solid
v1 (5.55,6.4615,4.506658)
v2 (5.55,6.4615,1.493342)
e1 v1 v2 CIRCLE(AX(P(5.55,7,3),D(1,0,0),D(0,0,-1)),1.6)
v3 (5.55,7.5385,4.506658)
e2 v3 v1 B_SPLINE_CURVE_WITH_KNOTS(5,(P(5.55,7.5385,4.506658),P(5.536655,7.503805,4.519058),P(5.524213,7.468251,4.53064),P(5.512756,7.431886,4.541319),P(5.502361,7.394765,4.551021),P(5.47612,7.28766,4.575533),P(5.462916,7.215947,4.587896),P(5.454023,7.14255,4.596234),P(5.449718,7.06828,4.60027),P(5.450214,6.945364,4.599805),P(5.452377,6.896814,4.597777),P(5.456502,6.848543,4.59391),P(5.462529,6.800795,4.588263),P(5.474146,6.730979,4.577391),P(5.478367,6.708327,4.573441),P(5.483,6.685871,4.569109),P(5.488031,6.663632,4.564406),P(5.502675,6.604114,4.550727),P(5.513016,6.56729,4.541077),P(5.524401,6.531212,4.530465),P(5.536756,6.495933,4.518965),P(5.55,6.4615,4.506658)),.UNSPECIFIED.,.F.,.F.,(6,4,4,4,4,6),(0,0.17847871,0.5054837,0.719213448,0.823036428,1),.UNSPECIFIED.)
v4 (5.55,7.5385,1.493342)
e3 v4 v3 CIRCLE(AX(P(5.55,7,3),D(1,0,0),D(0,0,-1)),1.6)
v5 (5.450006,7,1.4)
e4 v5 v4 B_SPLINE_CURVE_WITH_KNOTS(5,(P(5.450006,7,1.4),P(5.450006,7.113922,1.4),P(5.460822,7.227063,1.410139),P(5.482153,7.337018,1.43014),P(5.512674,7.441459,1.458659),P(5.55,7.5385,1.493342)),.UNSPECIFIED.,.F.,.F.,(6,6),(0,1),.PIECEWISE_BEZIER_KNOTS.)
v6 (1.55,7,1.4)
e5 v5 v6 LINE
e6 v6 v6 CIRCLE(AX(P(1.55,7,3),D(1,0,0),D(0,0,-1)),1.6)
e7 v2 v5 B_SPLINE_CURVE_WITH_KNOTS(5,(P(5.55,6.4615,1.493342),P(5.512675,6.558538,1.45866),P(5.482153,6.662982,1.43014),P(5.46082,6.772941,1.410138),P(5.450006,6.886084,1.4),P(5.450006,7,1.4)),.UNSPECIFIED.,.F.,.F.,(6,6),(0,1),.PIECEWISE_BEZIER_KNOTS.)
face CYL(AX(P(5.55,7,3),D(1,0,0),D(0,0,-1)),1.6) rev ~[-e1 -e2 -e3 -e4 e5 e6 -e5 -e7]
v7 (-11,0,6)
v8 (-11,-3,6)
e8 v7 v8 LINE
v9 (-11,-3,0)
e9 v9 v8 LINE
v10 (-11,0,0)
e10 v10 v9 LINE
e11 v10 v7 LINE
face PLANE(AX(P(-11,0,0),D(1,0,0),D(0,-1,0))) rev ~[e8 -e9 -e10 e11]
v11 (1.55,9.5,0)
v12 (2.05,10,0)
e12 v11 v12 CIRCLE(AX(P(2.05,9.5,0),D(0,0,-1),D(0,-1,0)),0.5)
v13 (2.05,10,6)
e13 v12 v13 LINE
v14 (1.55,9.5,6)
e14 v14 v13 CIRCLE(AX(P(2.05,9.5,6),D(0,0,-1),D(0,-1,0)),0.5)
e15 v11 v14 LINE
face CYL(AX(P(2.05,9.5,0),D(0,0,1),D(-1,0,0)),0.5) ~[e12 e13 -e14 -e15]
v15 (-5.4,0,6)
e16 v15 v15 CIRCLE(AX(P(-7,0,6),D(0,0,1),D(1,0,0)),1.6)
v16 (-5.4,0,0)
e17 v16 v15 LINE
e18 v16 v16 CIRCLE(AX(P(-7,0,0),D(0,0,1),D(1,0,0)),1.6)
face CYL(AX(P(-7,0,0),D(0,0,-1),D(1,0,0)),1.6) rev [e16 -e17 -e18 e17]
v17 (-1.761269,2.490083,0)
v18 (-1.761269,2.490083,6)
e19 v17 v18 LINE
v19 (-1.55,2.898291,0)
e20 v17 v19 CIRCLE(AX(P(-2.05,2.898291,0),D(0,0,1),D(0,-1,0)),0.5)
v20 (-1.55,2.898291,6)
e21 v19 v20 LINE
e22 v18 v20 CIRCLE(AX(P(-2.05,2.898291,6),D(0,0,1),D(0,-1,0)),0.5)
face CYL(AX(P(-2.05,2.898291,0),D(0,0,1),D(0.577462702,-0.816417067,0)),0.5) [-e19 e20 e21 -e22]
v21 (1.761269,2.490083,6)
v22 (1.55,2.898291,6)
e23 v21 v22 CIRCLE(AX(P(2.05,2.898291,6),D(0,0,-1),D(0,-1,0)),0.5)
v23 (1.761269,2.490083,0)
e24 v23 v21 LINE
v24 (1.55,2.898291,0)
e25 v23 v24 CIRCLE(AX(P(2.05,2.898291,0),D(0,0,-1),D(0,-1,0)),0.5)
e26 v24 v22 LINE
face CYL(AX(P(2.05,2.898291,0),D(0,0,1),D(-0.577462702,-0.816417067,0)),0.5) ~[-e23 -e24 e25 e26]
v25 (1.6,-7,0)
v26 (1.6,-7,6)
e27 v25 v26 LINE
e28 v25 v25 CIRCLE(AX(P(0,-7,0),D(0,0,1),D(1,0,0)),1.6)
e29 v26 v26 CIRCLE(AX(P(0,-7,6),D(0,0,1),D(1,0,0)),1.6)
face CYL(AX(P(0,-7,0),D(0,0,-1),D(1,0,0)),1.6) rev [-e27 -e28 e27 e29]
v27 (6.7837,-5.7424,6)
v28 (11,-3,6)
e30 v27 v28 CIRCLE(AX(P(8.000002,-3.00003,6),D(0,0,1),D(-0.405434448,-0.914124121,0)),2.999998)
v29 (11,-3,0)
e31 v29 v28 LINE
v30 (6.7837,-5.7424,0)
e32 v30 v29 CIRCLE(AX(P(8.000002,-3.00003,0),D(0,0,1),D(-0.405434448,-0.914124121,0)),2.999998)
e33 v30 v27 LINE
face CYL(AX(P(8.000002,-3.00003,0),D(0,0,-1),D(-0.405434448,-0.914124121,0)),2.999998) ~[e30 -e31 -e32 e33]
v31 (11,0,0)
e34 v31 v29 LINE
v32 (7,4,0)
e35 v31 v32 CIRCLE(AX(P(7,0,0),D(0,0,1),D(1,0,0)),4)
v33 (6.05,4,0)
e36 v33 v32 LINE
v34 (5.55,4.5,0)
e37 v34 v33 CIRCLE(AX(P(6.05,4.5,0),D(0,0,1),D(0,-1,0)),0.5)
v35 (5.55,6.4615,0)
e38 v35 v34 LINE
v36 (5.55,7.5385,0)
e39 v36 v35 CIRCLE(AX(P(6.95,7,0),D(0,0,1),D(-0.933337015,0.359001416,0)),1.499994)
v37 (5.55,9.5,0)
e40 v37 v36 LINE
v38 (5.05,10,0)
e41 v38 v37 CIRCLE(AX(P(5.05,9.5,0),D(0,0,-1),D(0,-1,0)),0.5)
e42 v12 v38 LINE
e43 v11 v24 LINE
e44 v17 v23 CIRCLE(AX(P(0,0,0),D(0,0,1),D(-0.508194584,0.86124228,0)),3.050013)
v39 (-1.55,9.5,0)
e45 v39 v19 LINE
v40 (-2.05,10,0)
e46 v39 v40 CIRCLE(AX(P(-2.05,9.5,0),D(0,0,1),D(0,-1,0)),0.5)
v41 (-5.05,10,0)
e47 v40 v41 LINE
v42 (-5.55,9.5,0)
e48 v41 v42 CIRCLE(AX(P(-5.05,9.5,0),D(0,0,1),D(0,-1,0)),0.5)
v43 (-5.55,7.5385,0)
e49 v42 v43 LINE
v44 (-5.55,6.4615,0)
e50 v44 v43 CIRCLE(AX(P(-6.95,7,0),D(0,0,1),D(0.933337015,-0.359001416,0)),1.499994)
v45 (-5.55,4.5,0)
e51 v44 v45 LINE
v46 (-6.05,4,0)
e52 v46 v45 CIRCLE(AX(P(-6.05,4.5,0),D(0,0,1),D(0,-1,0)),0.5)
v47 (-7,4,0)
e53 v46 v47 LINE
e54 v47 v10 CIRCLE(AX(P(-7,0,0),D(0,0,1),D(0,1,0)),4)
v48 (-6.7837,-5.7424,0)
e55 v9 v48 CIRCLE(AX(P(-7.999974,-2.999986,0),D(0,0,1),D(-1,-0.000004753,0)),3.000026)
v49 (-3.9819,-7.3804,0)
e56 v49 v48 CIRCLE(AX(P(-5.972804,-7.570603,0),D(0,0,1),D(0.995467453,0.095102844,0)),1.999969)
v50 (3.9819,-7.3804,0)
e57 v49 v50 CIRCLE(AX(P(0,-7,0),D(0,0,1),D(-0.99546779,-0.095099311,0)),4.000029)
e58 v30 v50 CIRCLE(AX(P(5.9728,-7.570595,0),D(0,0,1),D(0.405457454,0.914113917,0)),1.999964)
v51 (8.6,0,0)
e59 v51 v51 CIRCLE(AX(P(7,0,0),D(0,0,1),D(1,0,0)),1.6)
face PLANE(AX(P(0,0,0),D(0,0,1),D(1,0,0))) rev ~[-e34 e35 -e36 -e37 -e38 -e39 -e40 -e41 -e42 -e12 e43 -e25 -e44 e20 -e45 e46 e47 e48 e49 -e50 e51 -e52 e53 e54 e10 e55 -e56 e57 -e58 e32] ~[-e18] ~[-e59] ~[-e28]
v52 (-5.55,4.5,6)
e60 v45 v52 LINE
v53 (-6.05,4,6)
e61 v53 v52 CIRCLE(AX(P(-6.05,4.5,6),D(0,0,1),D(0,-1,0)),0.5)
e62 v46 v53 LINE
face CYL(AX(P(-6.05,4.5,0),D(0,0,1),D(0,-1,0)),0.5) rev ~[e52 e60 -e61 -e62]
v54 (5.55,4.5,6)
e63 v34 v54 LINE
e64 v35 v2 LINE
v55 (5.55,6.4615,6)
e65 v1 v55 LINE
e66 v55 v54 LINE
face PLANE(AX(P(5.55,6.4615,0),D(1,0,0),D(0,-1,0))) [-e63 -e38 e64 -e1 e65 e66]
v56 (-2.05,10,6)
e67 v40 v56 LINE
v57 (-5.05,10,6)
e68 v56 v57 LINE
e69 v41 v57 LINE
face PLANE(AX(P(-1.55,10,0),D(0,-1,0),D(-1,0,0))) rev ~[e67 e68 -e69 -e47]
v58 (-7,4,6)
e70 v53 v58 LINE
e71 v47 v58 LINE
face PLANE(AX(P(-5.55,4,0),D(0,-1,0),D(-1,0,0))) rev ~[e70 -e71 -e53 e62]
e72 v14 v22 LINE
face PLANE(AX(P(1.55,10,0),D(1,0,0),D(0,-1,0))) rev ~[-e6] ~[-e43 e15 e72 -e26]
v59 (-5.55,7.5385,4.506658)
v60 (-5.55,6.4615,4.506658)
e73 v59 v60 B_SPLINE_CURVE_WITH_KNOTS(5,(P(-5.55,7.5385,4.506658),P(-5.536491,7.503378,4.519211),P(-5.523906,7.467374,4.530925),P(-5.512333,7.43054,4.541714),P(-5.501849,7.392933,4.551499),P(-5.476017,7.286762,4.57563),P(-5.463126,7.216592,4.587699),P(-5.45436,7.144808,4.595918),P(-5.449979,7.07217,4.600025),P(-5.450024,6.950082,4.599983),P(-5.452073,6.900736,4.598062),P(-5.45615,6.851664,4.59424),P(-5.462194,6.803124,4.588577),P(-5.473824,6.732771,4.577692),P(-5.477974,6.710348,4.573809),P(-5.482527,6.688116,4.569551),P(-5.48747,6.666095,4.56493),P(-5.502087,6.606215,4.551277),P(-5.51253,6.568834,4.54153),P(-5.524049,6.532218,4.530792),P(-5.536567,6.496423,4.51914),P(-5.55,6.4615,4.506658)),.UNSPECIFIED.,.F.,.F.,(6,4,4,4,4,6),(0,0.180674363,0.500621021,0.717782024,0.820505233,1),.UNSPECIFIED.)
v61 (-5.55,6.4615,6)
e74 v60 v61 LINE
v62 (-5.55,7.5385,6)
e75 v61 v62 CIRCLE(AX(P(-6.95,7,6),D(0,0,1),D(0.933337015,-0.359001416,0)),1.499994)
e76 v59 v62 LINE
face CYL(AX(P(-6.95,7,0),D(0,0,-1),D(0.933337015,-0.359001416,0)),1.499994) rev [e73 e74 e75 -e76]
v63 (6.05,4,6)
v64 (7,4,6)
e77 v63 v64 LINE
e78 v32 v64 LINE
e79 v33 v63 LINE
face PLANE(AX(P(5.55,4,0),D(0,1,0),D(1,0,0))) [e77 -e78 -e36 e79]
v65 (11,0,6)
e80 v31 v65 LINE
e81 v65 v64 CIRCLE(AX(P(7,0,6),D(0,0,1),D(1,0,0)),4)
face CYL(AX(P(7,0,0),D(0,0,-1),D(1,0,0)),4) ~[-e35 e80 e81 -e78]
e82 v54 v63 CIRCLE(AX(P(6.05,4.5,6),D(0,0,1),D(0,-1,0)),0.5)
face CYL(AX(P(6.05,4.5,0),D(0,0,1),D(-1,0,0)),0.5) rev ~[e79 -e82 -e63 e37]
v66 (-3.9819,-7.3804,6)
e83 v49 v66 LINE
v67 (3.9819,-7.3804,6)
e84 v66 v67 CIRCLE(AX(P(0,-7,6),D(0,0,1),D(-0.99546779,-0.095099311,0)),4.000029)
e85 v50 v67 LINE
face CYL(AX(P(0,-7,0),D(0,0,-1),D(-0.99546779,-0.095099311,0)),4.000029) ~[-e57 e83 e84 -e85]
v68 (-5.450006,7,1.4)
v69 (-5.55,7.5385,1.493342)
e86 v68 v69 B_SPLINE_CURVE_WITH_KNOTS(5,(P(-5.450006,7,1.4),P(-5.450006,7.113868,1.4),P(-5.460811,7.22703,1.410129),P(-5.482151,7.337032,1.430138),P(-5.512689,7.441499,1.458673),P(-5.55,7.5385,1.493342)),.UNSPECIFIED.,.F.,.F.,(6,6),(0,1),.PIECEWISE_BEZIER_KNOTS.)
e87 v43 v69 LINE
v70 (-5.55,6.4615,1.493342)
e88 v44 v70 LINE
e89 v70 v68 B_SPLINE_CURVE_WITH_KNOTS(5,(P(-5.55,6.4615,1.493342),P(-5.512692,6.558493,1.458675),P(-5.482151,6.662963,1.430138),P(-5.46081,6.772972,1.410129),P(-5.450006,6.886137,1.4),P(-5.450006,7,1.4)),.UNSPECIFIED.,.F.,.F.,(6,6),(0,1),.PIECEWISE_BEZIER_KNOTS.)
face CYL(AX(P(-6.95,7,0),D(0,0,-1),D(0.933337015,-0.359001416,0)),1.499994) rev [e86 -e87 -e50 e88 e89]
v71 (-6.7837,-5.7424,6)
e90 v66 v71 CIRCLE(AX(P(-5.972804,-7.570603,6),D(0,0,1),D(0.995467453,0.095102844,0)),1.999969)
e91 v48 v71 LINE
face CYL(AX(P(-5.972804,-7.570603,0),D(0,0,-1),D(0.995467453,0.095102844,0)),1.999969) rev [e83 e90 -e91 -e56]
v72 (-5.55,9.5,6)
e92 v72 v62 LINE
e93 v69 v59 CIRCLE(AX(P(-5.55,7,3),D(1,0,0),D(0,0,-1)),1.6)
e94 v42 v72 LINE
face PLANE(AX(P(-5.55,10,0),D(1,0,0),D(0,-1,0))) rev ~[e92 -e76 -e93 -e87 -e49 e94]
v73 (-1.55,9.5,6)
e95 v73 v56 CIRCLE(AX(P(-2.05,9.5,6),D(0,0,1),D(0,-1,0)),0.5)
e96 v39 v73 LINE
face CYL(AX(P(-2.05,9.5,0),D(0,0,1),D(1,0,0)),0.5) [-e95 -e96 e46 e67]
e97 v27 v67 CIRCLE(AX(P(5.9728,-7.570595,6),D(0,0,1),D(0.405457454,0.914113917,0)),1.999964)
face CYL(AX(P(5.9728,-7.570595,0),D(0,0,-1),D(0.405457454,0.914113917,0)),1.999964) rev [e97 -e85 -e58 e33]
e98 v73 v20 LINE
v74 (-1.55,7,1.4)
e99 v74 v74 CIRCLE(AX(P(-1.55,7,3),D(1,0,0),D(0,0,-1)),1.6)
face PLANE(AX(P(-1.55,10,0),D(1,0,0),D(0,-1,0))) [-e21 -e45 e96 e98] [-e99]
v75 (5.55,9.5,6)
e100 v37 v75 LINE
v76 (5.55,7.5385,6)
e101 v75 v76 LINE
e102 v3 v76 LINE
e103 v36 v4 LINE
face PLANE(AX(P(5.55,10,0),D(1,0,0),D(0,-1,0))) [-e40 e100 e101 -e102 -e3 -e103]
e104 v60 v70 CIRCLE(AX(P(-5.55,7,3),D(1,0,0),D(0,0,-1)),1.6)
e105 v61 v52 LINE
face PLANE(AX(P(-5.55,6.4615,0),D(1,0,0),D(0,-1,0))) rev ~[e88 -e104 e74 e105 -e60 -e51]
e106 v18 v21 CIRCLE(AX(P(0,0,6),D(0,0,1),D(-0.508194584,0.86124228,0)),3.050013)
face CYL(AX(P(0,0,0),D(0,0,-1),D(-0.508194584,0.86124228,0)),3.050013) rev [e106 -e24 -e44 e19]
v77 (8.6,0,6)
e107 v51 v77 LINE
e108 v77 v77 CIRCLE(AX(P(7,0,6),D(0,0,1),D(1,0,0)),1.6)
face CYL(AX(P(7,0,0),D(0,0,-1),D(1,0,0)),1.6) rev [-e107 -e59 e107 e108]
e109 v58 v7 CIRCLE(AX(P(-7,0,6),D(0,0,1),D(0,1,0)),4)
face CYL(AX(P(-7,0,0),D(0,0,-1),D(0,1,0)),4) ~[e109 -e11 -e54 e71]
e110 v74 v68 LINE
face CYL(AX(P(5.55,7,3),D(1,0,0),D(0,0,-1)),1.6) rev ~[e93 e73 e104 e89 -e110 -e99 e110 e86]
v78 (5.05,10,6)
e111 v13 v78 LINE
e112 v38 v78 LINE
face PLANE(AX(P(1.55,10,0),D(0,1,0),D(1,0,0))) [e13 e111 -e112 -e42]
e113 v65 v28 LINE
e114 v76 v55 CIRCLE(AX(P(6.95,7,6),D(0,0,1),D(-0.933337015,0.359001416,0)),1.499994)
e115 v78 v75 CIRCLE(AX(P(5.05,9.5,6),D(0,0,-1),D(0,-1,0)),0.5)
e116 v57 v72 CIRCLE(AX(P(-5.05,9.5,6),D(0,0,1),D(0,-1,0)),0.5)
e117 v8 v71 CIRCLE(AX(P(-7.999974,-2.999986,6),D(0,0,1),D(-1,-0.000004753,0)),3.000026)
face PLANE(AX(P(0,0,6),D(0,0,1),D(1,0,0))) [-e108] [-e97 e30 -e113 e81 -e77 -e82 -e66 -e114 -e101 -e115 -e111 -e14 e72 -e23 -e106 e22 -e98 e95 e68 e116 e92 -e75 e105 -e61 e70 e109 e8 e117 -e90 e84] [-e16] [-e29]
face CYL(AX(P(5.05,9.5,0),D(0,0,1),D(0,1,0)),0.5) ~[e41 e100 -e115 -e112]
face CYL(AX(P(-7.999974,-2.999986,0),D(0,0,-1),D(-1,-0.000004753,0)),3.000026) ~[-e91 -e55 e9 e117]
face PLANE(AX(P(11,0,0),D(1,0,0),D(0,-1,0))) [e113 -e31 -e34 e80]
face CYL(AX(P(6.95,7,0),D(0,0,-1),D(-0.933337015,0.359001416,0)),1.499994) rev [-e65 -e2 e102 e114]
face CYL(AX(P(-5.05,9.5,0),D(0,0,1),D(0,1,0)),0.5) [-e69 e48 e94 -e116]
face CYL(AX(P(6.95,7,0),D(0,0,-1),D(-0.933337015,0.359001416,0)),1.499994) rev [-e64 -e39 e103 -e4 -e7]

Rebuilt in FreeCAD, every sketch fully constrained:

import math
import FreeCAD as App
import Part
import Sketcher


def edges_at(feature, points):
    """Names of the edges that pass closest to the given points."""
    edges = feature.Shape.Edges
    near = lambda p: min(range(len(edges)), key=lambda i: edges[i].distToShape(Part.Vertex(*p))[0])
    return sorted({f"Edge{near(p) + 1}" for p in points})

doc = App.newDocument("Part")
body = doc.addObject("PartDesign::Body", "Body")

# Sketch on XY plane
sketch1 = body.newObject("Sketcher::SketchObject", "Sketch")
sketch1.AttachmentSupport = (doc.getObject("XY_Plane"), [""])
sketch1.MapMode = "FlatFace"
sketch1.addGeometry([
    Part.ArcOfCircle(Part.Circle(App.Vector(0, 0, 0), App.Vector(0, 0, 1), 3.050013), math.radians(120.543647), math.radians(419.456353)),  # 0
    Part.LineSegment(App.Vector(-1.55, 2.6268, 0), App.Vector(-1.55, 10, 0)),  # 1
    Part.LineSegment(App.Vector(-1.55, 10, 0), App.Vector(-5.55, 10, 0)),  # 2
    Part.LineSegment(App.Vector(-5.55, 10, 0), App.Vector(-5.55, 7.5385, 0)),  # 3
    Part.ArcOfCircle(Part.Circle(App.Vector(-6.95, 7, 0), App.Vector(0, 0, 1), 1.499994), math.radians(-21.038882), math.radians(21.038882)),  # 4
    Part.LineSegment(App.Vector(-5.55, 6.4615, 0), App.Vector(-5.55, 4, 0)),  # 5
    Part.LineSegment(App.Vector(-5.55, 4, 0), App.Vector(-7, 4, 0)),  # 6
    Part.ArcOfCircle(Part.Circle(App.Vector(-7, 0, 0), App.Vector(0, 0, 1), 4), math.radians(90), math.radians(180)),  # 7
    Part.LineSegment(App.Vector(-11, 0, 0), App.Vector(-11, -3, 0)),  # 8
    Part.ArcOfCircle(Part.Circle(App.Vector(-8, -3, 0), App.Vector(0, 0, 1), 3), math.radians(180), math.radians(293.918082)),  # 9
    Part.ArcOfCircle(Part.Circle(App.Vector(-5.9728, -7.5706, 0), App.Vector(0, 0, 1), 1.999965), math.radians(5.457172), math.radians(113.91973)),  # 10
    Part.ArcOfCircle(Part.Circle(App.Vector(0, -7, 0), App.Vector(0, 0, 1), 4.000029), math.radians(-174.542964), math.radians(-5.457036)),  # 11
    Part.ArcOfCircle(Part.Circle(App.Vector(5.9728, -7.5706, 0), App.Vector(0, 0, 1), 1.999969), math.radians(66.08027), math.radians(174.542828)),  # 12
    Part.ArcOfCircle(Part.Circle(App.Vector(8, -3, 0), App.Vector(0, 0, 1), 3.000024), math.radians(-113.918082), math.radians(0)),  # 13
    Part.LineSegment(App.Vector(11, -3, 0), App.Vector(11, 0, 0)),  # 14
    Part.ArcOfCircle(Part.Circle(App.Vector(7, 0, 0), App.Vector(0, 0, 1), 4), math.radians(0), math.radians(90)),  # 15
    Part.LineSegment(App.Vector(7, 4, 0), App.Vector(5.55, 4, 0)),  # 16
    Part.LineSegment(App.Vector(5.55, 4, 0), App.Vector(5.55, 6.4615, 0)),  # 17
    Part.ArcOfCircle(Part.Circle(App.Vector(6.95, 7, 0), App.Vector(0, 0, 1), 1.499994), math.radians(158.961118), math.radians(201.038882)),  # 18
    Part.LineSegment(App.Vector(5.55, 7.5385, 0), App.Vector(5.55, 10, 0)),  # 19
    Part.LineSegment(App.Vector(5.55, 10, 0), App.Vector(1.55, 10, 0)),  # 20
    Part.LineSegment(App.Vector(1.55, 10, 0), App.Vector(1.55, 2.6268, 0)),  # 21
    Part.Circle(App.Vector(0, -7, 0), App.Vector(0, 0, 1), 1.6),  # 22
    Part.Circle(App.Vector(-7, 0, 0), App.Vector(0, 0, 1), 1.6),  # 23
    Part.Circle(App.Vector(7, 0, 0), App.Vector(0, 0, 1), 1.6),  # 24
], False)
sketch1.addConstraint([
    Sketcher.Constraint("Coincident", 0, 1, 1, 1),
    Sketcher.Constraint("Coincident", 1, 2, 2, 1),
    Sketcher.Constraint("Coincident", 2, 2, 3, 1),
    Sketcher.Constraint("Coincident", 3, 2, 4, 2),
    Sketcher.Constraint("Coincident", 4, 1, 5, 1),
    Sketcher.Constraint("Coincident", 5, 2, 6, 1),
    Sketcher.Constraint("Tangent", 6, 2, 7, 1),
    Sketcher.Constraint("Tangent", 7, 2, 8, 1),
    Sketcher.Constraint("Tangent", 8, 2, 9, 1),
    Sketcher.Constraint("Tangent", 9, 2, 10, 2),
    Sketcher.Constraint("Tangent", 10, 1, 11, 1),
    Sketcher.Constraint("Tangent", 11, 2, 12, 2),
    Sketcher.Constraint("Tangent", 12, 1, 13, 1),
    Sketcher.Constraint("Tangent", 13, 2, 14, 1),
    Sketcher.Constraint("Tangent", 14, 2, 15, 1),
    Sketcher.Constraint("Tangent", 15, 2, 16, 1),
    Sketcher.Constraint("Coincident", 16, 2, 17, 1),
    Sketcher.Constraint("Coincident", 17, 2, 18, 2),
    Sketcher.Constraint("Coincident", 18, 1, 19, 1),
    Sketcher.Constraint("Coincident", 19, 2, 20, 1),
    Sketcher.Constraint("Coincident", 20, 2, 21, 1),
    Sketcher.Constraint("Coincident", 21, 2, 0, 2),
    Sketcher.Constraint("Vertical", 1),
    Sketcher.Constraint("Horizontal", 2),
    Sketcher.Constraint("Vertical", 3),
    Sketcher.Constraint("Vertical", 5),
    Sketcher.Constraint("Horizontal", 6),
    Sketcher.Constraint("Vertical", 8),
    Sketcher.Constraint("Vertical", 14),
    Sketcher.Constraint("Horizontal", 16),
    Sketcher.Constraint("Vertical", 17),
    Sketcher.Constraint("Vertical", 19),
    Sketcher.Constraint("Horizontal", 20),
    Sketcher.Constraint("Vertical", 21),
    Sketcher.Constraint("Coincident", 0, 3, -1, 1),
    Sketcher.Constraint("Coincident", 22, 3, 11, 3),
    Sketcher.Constraint("Coincident", 23, 3, 7, 3),
    Sketcher.Constraint("Coincident", 24, 3, 15, 3),
    Sketcher.Constraint("Equal", 7, 11),
    Sketcher.Constraint("Equal", 10, 12),
    Sketcher.Constraint("Equal", 9, 13),
    Sketcher.Constraint("Equal", 11, 15),
    Sketcher.Constraint("Equal", 4, 18),
    Sketcher.Constraint("Equal", 22, 23),
    Sketcher.Constraint("Equal", 23, 24),
    Sketcher.Constraint("Symmetric", 7, 3, 15, 3, -1, 1),
    Sketcher.Constraint("Symmetric", 10, 3, 12, 3, -2),
    Sketcher.Constraint("Symmetric", 4, 3, 18, 3, -2),
    Sketcher.Constraint("Symmetric", 5, 2, 16, 2, -2),
    Sketcher.Constraint("Symmetric", 2, 2, 19, 2, -2),
    Sketcher.Constraint("Horizontal", 0, 1, 21, 2),
    Sketcher.Constraint("Vertical", 3, 2, 4, 1),
    Sketcher.Constraint("Equal", 3, 5),
    Sketcher.Constraint("Radius", 7, 4.0),
    Sketcher.Constraint("Radius", 9, 3.0),
    Sketcher.Constraint("Radius", 10, 2.0),
    Sketcher.Constraint("Diameter", 22, 3.2),
    Sketcher.Constraint("Radius", 4, 1.5),
    Sketcher.Constraint("DistanceX", 2, 2, 2, 1, 4.0),
    Sketcher.Constraint("DistanceY", 8, 2, 8, 1, 3.0),
    Sketcher.Constraint("Radius", 0, 3.05),
    Sketcher.Constraint("DistanceY", -1, 1, 4, 3, 7.0),
    Sketcher.Constraint("DistanceX", 7, 3, -1, 1, 7.0),
    Sketcher.Constraint("DistanceY", 11, 3, -1, 1, 7.0),
    Sketcher.Constraint("DistanceX", 4, 3, 2, 2, 1.4),
    Sketcher.Constraint("DistanceX", 1, 2, 20, 2, 3.1),
])
pad1 = body.newObject("PartDesign::Pad", "Pad")
pad1.Profile = sketch1
pad1.Length = 6

# Sketch on YZ plane
sketch2 = body.newObject("Sketcher::SketchObject", "Sketch001")
sketch2.AttachmentSupport = (doc.getObject("YZ_Plane"), [""])
sketch2.MapMode = "FlatFace"
sketch2.AttachmentOffset = App.Placement(App.Vector(0, 0, 5.55), App.Rotation())
sketch2.addGeometry(Part.Circle(App.Vector(7, 3, 0), App.Vector(0, 0, 1), 1.6), False)
sketch2.addConstraint([
    Sketcher.Constraint("Diameter", 0, 3.2),
    Sketcher.Constraint("DistanceY", -1, 1, 0, 3, 3.0),
    Sketcher.Constraint("DistanceX", -1, 1, 0, 3, 7.0),
])
pocket1 = body.newObject("PartDesign::Pocket", "Pocket")
pocket1.Profile = sketch2
pocket1.Type = "ThroughAll"
doc.recompute()

fillet = body.newObject("PartDesign::Fillet", "Fillet")
fillet.Base = (pocket1, edges_at(pocket1, [
    (-5.55, 10, 3),
    (-1.55, 10, 3),
    (1.55, 10, 3),
    (5.55, 10, 3),
    (5.55, 4, 3),
    (-5.55, 4, 3),
    (-1.55, 2.627, 3),
    (1.55, 2.627, 3),
]))
fillet.Radius = 0.5

doc.recompute()
